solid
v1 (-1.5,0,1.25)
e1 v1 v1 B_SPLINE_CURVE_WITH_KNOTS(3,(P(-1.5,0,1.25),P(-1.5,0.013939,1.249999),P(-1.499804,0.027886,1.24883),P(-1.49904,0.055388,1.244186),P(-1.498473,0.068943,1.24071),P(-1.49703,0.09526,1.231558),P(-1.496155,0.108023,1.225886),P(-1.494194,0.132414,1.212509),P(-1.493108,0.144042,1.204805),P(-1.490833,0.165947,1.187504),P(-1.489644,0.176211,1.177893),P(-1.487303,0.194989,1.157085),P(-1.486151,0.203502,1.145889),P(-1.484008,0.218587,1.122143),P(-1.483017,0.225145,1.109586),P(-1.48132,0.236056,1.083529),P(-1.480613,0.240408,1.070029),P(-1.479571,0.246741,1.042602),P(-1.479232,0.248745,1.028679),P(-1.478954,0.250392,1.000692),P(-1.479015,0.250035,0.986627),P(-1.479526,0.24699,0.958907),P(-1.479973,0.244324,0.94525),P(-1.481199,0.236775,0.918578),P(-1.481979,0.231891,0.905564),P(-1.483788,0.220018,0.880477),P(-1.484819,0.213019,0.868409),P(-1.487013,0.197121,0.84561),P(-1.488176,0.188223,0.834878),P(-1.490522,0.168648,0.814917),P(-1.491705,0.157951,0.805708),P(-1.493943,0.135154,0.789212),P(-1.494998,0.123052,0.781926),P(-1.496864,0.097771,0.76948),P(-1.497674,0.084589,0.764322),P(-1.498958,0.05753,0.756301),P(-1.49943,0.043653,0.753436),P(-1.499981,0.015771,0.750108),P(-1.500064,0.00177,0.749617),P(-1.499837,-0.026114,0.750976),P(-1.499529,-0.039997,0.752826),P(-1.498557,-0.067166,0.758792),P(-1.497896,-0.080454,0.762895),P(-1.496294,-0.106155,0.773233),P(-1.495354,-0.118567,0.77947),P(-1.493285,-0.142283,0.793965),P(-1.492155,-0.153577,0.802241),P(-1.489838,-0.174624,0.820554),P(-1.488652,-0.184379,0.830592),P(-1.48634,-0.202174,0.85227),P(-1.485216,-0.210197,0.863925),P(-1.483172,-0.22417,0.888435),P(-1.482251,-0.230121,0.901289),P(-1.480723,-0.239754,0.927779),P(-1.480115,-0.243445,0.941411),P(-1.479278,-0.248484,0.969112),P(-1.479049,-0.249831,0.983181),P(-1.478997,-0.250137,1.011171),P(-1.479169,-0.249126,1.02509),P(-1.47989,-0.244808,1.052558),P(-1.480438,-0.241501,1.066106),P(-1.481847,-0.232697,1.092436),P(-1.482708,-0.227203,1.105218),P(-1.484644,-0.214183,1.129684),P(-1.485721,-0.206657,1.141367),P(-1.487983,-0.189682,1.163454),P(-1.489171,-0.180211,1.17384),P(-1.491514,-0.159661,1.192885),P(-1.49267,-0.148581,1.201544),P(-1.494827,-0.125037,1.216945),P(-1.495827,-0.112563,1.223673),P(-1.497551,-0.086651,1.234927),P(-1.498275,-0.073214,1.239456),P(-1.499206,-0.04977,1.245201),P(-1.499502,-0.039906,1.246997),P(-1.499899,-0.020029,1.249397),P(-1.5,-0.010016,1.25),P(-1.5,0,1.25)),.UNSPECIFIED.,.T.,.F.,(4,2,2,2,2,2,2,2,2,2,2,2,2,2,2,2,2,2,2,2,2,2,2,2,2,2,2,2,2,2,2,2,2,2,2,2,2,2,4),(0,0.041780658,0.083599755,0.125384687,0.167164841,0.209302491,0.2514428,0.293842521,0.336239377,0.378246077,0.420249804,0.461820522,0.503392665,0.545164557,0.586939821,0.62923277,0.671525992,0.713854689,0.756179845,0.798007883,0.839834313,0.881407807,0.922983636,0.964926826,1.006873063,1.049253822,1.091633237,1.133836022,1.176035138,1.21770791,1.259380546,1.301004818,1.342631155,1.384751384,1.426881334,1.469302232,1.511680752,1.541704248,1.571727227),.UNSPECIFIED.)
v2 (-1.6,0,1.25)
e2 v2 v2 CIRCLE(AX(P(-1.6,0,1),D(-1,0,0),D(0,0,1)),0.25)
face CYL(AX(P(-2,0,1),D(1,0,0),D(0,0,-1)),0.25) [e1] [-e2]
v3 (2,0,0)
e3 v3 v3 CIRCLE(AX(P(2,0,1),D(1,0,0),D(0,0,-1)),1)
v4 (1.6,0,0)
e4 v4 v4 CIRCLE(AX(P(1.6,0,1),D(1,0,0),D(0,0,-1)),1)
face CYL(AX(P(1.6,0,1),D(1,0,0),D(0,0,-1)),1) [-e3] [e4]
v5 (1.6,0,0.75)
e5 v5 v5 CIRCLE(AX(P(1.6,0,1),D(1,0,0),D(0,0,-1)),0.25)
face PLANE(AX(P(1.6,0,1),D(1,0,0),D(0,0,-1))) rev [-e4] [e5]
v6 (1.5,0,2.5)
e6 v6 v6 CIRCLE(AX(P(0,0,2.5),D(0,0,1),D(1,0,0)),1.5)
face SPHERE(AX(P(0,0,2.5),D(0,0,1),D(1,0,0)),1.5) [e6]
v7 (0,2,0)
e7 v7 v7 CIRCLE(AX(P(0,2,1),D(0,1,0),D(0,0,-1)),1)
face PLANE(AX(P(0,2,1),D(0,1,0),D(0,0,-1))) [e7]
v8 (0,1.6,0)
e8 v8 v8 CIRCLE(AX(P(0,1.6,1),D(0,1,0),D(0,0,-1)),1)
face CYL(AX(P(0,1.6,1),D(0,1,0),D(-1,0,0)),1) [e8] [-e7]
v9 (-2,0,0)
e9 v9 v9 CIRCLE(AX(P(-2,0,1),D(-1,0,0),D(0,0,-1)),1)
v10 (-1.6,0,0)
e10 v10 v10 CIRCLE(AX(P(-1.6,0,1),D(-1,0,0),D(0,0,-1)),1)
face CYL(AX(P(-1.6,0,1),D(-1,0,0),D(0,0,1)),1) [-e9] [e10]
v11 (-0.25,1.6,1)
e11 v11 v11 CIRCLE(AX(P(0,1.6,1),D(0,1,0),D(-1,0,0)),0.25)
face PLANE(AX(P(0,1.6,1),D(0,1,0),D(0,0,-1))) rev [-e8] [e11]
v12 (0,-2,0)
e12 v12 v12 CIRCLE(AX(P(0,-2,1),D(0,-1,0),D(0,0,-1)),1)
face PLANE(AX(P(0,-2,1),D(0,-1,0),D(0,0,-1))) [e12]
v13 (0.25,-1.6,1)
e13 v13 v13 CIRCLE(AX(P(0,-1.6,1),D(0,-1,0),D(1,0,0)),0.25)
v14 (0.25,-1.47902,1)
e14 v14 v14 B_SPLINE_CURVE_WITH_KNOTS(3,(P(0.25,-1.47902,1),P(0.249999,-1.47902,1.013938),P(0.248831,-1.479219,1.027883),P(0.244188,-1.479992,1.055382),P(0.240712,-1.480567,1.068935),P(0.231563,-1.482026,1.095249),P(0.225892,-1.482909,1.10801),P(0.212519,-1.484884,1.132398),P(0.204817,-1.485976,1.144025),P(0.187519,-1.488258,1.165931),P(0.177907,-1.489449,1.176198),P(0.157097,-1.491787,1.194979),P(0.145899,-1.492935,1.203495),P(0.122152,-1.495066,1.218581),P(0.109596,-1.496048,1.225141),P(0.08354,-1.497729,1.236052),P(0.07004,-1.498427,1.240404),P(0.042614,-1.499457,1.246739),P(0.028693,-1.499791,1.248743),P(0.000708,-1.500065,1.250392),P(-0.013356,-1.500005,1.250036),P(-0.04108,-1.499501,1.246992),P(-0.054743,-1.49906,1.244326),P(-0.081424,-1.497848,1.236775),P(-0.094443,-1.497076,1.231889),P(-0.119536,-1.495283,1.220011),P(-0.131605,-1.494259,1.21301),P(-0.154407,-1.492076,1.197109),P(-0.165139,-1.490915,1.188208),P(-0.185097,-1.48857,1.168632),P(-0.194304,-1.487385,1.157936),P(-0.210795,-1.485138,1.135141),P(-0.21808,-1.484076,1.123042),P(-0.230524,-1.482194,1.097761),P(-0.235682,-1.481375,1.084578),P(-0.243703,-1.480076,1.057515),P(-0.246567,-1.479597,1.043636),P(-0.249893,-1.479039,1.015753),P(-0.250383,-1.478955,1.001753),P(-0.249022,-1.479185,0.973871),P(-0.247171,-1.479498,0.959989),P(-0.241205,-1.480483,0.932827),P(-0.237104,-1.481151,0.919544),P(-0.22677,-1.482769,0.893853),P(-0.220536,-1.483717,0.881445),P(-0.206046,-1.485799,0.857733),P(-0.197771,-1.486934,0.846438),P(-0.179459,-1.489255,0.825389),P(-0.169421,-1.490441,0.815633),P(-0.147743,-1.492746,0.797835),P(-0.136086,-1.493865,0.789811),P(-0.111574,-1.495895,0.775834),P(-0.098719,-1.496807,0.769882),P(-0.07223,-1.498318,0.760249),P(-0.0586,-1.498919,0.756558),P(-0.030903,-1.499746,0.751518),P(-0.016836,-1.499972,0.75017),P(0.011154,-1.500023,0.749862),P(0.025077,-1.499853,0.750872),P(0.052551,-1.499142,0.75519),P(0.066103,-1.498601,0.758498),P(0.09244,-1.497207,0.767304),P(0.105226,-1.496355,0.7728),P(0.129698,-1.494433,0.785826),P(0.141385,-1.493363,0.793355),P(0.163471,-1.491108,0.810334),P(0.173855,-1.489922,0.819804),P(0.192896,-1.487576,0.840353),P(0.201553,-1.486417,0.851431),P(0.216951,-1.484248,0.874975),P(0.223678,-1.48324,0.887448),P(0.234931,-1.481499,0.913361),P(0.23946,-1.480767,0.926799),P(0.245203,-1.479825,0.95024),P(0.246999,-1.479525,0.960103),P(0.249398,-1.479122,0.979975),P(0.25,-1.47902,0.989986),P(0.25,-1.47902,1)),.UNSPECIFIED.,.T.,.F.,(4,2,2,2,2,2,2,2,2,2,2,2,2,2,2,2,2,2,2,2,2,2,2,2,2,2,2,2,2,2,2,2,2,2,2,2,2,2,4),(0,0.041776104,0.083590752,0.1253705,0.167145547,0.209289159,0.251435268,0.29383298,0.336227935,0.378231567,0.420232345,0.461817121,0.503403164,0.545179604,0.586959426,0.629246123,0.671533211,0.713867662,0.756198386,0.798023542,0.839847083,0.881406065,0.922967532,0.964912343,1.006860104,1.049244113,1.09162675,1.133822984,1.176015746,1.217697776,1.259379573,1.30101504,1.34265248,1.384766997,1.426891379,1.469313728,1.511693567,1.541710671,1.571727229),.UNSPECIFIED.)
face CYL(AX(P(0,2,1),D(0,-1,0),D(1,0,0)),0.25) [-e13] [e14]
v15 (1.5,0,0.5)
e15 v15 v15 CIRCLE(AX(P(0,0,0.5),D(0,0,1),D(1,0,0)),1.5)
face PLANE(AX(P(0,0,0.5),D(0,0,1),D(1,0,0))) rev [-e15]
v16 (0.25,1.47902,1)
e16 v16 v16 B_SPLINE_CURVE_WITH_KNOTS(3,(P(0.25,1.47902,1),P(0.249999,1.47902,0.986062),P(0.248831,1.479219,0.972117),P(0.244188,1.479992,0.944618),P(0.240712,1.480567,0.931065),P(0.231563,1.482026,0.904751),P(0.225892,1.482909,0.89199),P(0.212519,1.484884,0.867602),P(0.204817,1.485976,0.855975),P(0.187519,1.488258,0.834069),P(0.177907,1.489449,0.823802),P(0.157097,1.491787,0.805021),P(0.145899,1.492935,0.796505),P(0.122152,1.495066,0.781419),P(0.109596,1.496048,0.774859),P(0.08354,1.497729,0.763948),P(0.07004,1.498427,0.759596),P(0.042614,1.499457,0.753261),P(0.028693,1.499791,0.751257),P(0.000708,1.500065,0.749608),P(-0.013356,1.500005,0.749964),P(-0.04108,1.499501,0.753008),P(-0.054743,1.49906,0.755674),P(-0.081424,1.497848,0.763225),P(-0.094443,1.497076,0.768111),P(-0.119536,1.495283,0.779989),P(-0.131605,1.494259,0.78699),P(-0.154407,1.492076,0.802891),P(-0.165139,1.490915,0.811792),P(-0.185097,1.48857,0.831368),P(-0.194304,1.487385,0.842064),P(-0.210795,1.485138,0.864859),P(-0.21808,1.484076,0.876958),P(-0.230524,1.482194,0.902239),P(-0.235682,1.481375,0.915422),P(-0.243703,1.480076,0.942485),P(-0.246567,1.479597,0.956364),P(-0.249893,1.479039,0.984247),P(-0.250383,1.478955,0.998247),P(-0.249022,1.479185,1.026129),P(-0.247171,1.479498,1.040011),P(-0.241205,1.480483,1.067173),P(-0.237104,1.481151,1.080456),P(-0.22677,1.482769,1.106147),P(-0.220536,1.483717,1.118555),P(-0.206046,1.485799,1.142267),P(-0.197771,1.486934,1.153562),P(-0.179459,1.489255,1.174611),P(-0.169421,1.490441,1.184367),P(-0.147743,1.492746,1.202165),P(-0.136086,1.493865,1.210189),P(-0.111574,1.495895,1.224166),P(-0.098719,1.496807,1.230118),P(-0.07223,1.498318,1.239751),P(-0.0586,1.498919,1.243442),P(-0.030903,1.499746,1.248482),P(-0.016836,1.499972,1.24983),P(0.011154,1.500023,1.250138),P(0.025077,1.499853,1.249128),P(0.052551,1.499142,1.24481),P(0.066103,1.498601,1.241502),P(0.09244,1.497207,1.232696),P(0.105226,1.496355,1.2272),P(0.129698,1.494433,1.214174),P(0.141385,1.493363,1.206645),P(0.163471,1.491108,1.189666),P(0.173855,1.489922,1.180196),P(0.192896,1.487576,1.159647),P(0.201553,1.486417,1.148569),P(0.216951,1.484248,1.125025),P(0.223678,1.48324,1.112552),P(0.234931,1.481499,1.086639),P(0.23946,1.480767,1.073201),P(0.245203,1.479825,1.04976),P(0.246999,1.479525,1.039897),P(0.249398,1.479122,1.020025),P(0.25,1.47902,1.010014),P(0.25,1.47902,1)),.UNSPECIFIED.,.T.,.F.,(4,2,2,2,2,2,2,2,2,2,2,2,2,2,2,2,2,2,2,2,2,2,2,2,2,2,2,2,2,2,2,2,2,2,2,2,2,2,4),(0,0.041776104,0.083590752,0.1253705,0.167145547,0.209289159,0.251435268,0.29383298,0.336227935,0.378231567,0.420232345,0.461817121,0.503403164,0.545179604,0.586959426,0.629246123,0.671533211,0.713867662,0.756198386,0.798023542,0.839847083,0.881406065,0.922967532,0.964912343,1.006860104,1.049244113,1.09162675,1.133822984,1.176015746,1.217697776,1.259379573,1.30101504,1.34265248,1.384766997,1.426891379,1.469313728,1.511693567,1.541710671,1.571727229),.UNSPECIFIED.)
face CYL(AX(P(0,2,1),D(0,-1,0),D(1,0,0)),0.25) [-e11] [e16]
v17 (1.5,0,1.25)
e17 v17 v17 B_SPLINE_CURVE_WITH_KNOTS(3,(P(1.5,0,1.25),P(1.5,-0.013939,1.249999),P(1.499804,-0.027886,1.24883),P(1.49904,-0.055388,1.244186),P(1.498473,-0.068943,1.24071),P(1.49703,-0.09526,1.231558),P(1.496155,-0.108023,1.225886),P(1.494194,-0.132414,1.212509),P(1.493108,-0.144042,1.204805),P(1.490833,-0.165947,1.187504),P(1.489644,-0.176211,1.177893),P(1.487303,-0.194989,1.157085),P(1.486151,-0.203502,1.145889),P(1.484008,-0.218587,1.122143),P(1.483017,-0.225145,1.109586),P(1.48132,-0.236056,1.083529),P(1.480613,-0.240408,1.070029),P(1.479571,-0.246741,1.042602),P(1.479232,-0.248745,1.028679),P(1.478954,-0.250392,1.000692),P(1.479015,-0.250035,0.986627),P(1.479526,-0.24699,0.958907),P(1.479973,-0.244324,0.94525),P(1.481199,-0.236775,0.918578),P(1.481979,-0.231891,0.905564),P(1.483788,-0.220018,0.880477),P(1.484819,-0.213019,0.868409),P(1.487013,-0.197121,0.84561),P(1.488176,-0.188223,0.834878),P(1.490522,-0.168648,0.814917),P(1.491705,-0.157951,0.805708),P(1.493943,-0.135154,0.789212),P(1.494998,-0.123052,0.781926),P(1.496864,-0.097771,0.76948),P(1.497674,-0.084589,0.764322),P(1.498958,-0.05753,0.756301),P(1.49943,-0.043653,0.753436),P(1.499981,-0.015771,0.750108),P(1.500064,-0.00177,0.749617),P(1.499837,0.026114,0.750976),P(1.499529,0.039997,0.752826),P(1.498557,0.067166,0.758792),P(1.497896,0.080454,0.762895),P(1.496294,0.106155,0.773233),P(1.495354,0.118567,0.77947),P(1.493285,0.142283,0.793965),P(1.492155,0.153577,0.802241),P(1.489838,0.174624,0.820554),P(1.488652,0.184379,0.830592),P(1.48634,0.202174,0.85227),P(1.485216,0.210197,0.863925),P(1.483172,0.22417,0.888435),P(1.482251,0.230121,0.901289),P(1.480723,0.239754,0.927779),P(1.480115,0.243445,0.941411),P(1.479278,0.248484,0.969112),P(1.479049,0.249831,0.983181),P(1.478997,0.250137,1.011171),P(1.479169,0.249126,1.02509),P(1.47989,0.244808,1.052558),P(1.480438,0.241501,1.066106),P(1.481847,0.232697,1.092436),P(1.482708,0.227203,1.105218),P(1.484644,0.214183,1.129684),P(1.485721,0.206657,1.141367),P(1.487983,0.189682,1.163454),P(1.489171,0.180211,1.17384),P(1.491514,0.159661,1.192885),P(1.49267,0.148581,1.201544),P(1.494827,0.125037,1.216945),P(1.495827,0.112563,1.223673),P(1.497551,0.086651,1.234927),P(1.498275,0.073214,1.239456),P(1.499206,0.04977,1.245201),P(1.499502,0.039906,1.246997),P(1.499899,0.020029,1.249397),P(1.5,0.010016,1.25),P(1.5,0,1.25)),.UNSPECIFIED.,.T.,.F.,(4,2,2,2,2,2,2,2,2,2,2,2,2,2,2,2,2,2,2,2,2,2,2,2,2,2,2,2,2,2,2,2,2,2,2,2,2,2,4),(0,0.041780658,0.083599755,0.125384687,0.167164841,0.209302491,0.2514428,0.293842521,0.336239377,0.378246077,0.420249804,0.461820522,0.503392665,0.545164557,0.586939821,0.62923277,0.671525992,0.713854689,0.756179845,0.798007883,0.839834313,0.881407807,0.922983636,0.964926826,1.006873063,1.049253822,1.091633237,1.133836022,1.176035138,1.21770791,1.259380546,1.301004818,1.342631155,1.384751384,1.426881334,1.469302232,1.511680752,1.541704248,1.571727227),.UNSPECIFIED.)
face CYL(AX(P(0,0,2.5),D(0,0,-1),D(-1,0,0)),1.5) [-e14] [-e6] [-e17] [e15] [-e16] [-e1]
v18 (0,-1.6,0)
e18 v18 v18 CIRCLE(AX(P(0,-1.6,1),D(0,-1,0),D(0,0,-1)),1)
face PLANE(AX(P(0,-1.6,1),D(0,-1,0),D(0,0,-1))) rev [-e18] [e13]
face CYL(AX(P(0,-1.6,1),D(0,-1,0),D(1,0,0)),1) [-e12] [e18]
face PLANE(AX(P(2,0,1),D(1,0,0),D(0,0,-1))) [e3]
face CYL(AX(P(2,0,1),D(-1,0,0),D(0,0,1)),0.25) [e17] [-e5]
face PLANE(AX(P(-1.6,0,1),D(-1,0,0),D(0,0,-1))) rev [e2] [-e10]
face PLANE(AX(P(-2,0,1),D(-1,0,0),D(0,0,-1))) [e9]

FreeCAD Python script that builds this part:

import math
import FreeCAD as App
import Part
import Sketcher
from FreeCAD import Vector
Q = App.Units.Quantity

doc = App.newDocument("Part")
params = doc.addObject("Spreadsheet::Sheet", "Params")
for row, (alias, value) in enumerate([
    ("sketch1_diameter", "3 mm"),
    ("pad1_length", "2 mm"),
    ("sketch2_radius", "1.5 mm"),
    ("revolution_angle", "180 deg"),
    ("sketch3_diameter", "0.5 mm"),
    ("pad2_length", "2 mm"),
    ("sketch4_diameter", "2 mm"),
    ("pad3_length", "0.4 mm"),
], start=1):
    params.set(f"A{row}", alias)
    params.set(f"B{row}", "=" + value)
    params.setAlias(f"B{row}", alias)

body = doc.addObject("PartDesign::Body", "Body")

sketch1 = body.newObject("Sketcher::SketchObject", "Sketch")
sketch1.AttachmentSupport = (doc.getObject("XY_Plane"), [""])
sketch1.MapMode = "FlatFace"
sketch1.AttachmentOffset = App.Placement(Vector(0, 0, 0.5), App.Rotation())
sketch1.addGeometry(Part.Circle(Vector(0, 0, 0), Vector(0, 0, 1), 1.5), False)
sketch1.addConstraint([
    Sketcher.Constraint("Coincident", 0, 3, -1, 1),
    Sketcher.Constraint("Diameter", 0, Q("3 mm")),
])
sketch1.setExpression("Constraints[1]", "Params.sketch1_diameter")
pad1 = body.newObject("PartDesign::Pad", "Pad")
pad1.Profile = sketch1
pad1.setExpression("Length", "Params.pad1_length")

sketch2 = body.newObject("Sketcher::SketchObject", "Sketch001")
sketch2.AttachmentSupport = (doc.getObject("XY_Plane"), [""])
sketch2.MapMode = "FlatFace"
sketch2.AttachmentOffset = App.Placement(Vector(0, 0, 2.5), App.Rotation())
sketch2.addGeometry([
    Part.LineSegment(Vector(-1.5, 0, 0), Vector(1.5, 0, 0)),
    Part.ArcOfCircle(Part.Circle(Vector(0, 0, 0), Vector(0, 0, 1), 1.5), math.radians(0), math.radians(180)),
], False)
sketch2.addConstraint([
    Sketcher.Constraint("Coincident", 0, 1, 1, 2),
    Sketcher.Constraint("Coincident", 1, 1, 0, 2),
    Sketcher.Constraint("Horizontal", 0),
    Sketcher.Constraint("Coincident", 1, 3, -1, 1),
    Sketcher.Constraint("PointOnObject", 0, 1, -1),
    Sketcher.Constraint("Radius", 1, Q("1.5 mm")),
])
sketch2.setExpression("Constraints[5]", "Params.sketch2_radius")
revolution = body.newObject("PartDesign::Revolution", "Revolution")
revolution.Profile = sketch2
revolution.ReferenceAxis = (sketch2, ["H_Axis"])
revolution.setExpression("Angle", "Params.revolution_angle")

sketch3 = body.newObject("Sketcher::SketchObject", "Sketch002")
sketch3.AttachmentSupport = (doc.getObject("YZ_Plane"), [""])
sketch3.MapMode = "FlatFace"
sketch3.addGeometry(Part.Circle(Vector(0, 1, 0), Vector(0, 0, 1), 0.25), False)
sketch3.addConstraint([
    Sketcher.Constraint("PointOnObject", 0, 3, -2),
    Sketcher.Constraint("Diameter", 0, Q("0.5 mm")),
    Sketcher.Constraint("DistanceY", -1, 1, 0, 3, Q("1 mm")),
])
sketch3.setExpression("Constraints[1]", "Params.sketch3_diameter")
pad2 = body.newObject("PartDesign::Pad", "Pad001")
pad2.Profile = sketch3
pad2.setExpression("Length", "Params.pad2_length")

sketch4 = body.newObject("Sketcher::SketchObject", "Sketch003")
sketch4.AttachmentSupport = (doc.getObject("YZ_Plane"), [""])
sketch4.MapMode = "FlatFace"
sketch4.AttachmentOffset = App.Placement(Vector(0, 0, 2), App.Rotation())
sketch4.addGeometry(Part.Circle(Vector(0, 1, 0), Vector(0, 0, 1), 1), False)
sketch4.addConstraint([
    Sketcher.Constraint("PointOnObject", 0, 3, -2),
    Sketcher.Constraint("Diameter", 0, Q("2 mm")),
    Sketcher.Constraint("DistanceY", -1, 1, 0, 3, Q("1 mm")),
])
sketch4.setExpression("Constraints[1]", "Params.sketch4_diameter")
pad3 = body.newObject("PartDesign::Pad", "Pad002")
pad3.Profile = sketch4
pad3.setExpression("Length", "Params.pad3_length")
pad3.Reversed = True
doc.recompute()

polarpattern = body.newObject("PartDesign::PolarPattern", "PolarPattern")
polarpattern.Originals = [pad2, pad3]
polarpattern.Axis = (doc.getObject("Z_Axis"), [""])
polarpattern.Angle = 360
polarpattern.Occurrences = 4
body.Tip = polarpattern

doc.recompute()
